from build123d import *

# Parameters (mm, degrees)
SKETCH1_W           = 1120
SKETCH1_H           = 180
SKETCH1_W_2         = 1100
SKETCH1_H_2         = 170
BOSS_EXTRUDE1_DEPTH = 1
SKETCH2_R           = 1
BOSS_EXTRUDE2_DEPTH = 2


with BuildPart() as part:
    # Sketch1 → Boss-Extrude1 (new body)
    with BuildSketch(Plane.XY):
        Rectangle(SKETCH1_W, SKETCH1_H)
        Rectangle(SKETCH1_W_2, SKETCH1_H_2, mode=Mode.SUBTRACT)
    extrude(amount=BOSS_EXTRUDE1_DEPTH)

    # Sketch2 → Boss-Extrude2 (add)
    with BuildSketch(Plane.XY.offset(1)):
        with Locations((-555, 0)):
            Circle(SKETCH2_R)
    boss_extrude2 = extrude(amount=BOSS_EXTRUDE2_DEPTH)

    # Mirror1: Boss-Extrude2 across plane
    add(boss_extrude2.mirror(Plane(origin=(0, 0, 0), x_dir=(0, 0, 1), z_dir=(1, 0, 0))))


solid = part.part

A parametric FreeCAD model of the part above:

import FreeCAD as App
import Part
import Sketcher

doc = App.newDocument("Part")
body = doc.addObject("PartDesign::Body", "Body")

# Sketch on XY plane
sketch1 = body.newObject("Sketcher::SketchObject", "Sketch")
sketch1.AttachmentSupport = (doc.getObject("XY_Plane"), [""])
sketch1.MapMode = "FlatFace"
sketch1.addGeometry([
    Part.LineSegment(App.Vector(-560, 90, 0), App.Vector(-560, -90, 0)),  # 0
    Part.LineSegment(App.Vector(-560, -90, 0), App.Vector(560, -90, 0)),  # 1
    Part.LineSegment(App.Vector(560, -90, 0), App.Vector(560, 90, 0)),  # 2
    Part.LineSegment(App.Vector(560, 90, 0), App.Vector(-560, 90, 0)),  # 3
    Part.LineSegment(App.Vector(550, -85, 0), App.Vector(-550, -85, 0)),  # 4
    Part.LineSegment(App.Vector(-550, -85, 0), App.Vector(-550, 85, 0)),  # 5
    Part.LineSegment(App.Vector(-550, 85, 0), App.Vector(550, 85, 0)),  # 6
    Part.LineSegment(App.Vector(550, 85, 0), App.Vector(550, -85, 0)),  # 7
], False)
sketch1.addConstraint([
    Sketcher.Constraint("Coincident", 0, 2, 1, 1),
    Sketcher.Constraint("Coincident", 1, 2, 2, 1),
    Sketcher.Constraint("Coincident", 2, 2, 3, 1),
    Sketcher.Constraint("Coincident", 3, 2, 0, 1),
    Sketcher.Constraint("Coincident", 4, 2, 5, 1),
    Sketcher.Constraint("Coincident", 5, 2, 6, 1),
    Sketcher.Constraint("Coincident", 6, 2, 7, 1),
    Sketcher.Constraint("Coincident", 7, 2, 4, 1),
    Sketcher.Constraint("Vertical", 0),
    Sketcher.Constraint("Horizontal", 1),
    Sketcher.Constraint("Vertical", 2),
    Sketcher.Constraint("Horizontal", 3),
    Sketcher.Constraint("Horizontal", 4),
    Sketcher.Constraint("Vertical", 5),
    Sketcher.Constraint("Horizontal", 6),
    Sketcher.Constraint("Vertical", 7),
    Sketcher.Constraint("Symmetric", 0, 2, 2, 2, -1, 1),
    Sketcher.Constraint("Symmetric", 4, 2, 6, 2, -1, 1),
    Sketcher.Constraint("DistanceX", 1, 1, 1, 2, 1120.0),
    Sketcher.Constraint("DistanceX", 4, 2, 4, 1, 1100.0),
    Sketcher.Constraint("DistanceY", 0, 2, 0, 1, 180.0),
    Sketcher.Constraint("DistanceY", 5, 1, 5, 2, 170.0),
])
pad1 = body.newObject("PartDesign::Pad", "Pad")
pad1.Profile = sketch1
pad1.Length = 1

# Sketch on XY plane
sketch2 = body.newObject("Sketcher::SketchObject", "Sketch001")
sketch2.AttachmentSupport = (doc.getObject("XY_Plane"), [""])
sketch2.MapMode = "FlatFace"
sketch2.AttachmentOffset = App.Placement(App.Vector(0, 0, 1), App.Rotation())
sketch2.addGeometry(Part.Circle(App.Vector(-555, 0, 0), App.Vector(0, 0, 1), 1), False)
sketch2.addConstraint([
    Sketcher.Constraint("PointOnObject", 0, 3, -1),
    Sketcher.Constraint("Diameter", 0, 2.0),
    Sketcher.Constraint("DistanceX", 0, 3, -1, 1, 555.0),
])
pad2 = body.newObject("PartDesign::Pad", "Pad001")
pad2.Profile = sketch2
pad2.Length = 2
doc.recompute()

mirrored = body.newObject("PartDesign::Mirrored", "Mirrored")
mirrored.Originals = [pad2]
mirrored.MirrorPlane = (doc.getObject("YZ_Plane"), [""])
body.Tip = mirrored

doc.recompute()
